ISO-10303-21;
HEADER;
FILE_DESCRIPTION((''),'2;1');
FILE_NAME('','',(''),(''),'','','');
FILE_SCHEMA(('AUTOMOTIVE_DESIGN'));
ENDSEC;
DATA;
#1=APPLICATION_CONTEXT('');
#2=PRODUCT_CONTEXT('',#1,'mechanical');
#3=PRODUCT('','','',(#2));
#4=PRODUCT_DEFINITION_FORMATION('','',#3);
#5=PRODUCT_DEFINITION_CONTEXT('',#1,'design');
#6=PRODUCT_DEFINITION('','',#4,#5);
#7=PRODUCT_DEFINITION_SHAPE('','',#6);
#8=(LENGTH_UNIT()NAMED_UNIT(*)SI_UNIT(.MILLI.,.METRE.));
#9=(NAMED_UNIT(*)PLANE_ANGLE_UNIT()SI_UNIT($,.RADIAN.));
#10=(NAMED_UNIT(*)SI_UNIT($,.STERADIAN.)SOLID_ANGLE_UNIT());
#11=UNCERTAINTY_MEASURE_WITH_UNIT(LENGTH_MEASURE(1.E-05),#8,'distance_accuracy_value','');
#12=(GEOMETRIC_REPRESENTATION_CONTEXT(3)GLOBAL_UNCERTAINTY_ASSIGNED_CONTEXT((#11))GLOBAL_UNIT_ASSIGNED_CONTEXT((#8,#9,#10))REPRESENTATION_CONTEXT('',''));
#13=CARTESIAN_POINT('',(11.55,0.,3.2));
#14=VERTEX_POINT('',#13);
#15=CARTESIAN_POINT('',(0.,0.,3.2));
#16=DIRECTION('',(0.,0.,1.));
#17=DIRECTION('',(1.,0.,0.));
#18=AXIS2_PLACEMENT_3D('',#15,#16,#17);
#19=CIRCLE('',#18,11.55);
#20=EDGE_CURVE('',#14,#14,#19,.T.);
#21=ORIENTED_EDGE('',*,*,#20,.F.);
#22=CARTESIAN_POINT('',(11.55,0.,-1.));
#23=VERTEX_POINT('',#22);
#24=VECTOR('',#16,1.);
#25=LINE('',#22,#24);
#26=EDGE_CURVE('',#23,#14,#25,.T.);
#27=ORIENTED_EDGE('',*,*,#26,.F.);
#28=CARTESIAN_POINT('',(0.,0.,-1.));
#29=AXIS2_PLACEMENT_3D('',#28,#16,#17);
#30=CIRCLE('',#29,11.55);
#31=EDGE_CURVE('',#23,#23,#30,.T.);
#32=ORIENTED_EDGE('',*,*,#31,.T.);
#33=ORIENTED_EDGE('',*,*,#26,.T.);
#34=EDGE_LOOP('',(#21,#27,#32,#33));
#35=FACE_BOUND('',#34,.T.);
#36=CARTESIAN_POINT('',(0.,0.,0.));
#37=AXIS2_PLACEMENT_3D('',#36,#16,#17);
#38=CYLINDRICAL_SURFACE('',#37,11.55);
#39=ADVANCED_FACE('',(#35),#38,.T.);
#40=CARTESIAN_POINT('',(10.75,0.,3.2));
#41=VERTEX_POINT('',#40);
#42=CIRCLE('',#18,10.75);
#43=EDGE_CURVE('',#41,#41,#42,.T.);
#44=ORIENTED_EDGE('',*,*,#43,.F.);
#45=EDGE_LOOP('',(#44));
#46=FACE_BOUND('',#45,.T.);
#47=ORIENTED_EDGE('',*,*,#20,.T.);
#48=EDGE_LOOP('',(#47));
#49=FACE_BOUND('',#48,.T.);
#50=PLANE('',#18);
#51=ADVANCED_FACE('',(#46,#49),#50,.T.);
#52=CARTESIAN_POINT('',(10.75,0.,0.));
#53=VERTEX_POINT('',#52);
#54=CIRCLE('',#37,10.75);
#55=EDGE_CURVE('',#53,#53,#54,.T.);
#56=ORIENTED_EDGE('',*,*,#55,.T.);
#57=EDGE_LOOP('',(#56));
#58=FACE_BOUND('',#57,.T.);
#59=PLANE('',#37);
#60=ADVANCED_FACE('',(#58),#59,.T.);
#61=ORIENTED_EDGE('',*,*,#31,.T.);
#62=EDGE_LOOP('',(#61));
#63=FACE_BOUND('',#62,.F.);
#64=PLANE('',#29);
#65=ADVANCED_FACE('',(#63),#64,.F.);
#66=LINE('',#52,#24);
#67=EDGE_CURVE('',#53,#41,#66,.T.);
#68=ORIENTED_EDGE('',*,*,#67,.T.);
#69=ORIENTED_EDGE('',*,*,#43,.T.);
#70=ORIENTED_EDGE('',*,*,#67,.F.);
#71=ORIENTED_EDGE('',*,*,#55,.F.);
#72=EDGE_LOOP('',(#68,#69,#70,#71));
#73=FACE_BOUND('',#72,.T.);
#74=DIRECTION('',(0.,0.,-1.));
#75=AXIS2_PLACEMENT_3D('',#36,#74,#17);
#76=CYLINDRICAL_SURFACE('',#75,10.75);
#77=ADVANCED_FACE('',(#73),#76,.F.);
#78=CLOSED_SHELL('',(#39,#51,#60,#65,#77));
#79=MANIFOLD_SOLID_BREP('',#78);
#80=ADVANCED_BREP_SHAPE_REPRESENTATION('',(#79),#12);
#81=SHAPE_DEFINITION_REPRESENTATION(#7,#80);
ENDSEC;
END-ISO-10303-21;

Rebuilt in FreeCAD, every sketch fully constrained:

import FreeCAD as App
import Part
import Sketcher
from FreeCAD import Vector

doc = App.newDocument("Part")
params = doc.addObject("Spreadsheet::Sheet", "Params")
for row, (alias, value) in enumerate([
    ("sketch1_diameter", "23.1 mm"),
    ("sketch1_diameter2", "21.5 mm"),
    ("pad1_length", "3.2 mm"),
    ("sketch2_diameter", "23.1 mm"),
    ("pad2_length", "1 mm"),
], start=1):
    params.set(f"A{row}", alias)
    params.set(f"B{row}", "=" + value)
    params.setAlias(f"B{row}", alias)

body = doc.addObject("PartDesign::Body", "Body")

# Sketch on XY plane
sketch1 = body.newObject("Sketcher::SketchObject", "Sketch")
sketch1.AttachmentSupport = (doc.getObject("XY_Plane"), [""])
sketch1.MapMode = "FlatFace"
sketch1.addGeometry([
    Part.Circle(Vector(0, 0, 0), Vector(0, 0, 1), 12),
    Part.Circle(Vector(0, 0, 0), Vector(0, 0, 1), 11),
], False)
sketch1.addConstraint([
    Sketcher.Constraint("Coincident", 0, 3, -1, 1),
    Sketcher.Constraint("Coincident", 1, 3, -1, 1),
    Sketcher.Constraint("Diameter", 0, 23.1),
    Sketcher.Constraint("Diameter", 1, 21.5),
])
sketch1.setExpression("Constraints[2]", "Params.sketch1_diameter")
sketch1.setExpression("Constraints[3]", "Params.sketch1_diameter2")
pad1 = body.newObject("PartDesign::Pad", "Pad")
pad1.Profile = sketch1
pad1.setExpression("Length", "Params.pad1_length")

# Sketch on XY plane
sketch2 = body.newObject("Sketcher::SketchObject", "Sketch001")
sketch2.AttachmentSupport = (doc.getObject("XY_Plane"), [""])
sketch2.MapMode = "FlatFace"
sketch2.addGeometry(Part.Circle(Vector(0, 0, 0), Vector(0, 0, 1), 12), False)
sketch2.addConstraint([
    Sketcher.Constraint("Coincident", 0, 3, -1, 1),
    Sketcher.Constraint("Diameter", 0, 23.1),
])
sketch2.setExpression("Constraints[1]", "Params.sketch2_diameter")
pad2 = body.newObject("PartDesign::Pad", "Pad001")
pad2.Profile = sketch2
pad2.setExpression("Length", "Params.pad2_length")
pad2.Reversed = True

doc.recompute()
